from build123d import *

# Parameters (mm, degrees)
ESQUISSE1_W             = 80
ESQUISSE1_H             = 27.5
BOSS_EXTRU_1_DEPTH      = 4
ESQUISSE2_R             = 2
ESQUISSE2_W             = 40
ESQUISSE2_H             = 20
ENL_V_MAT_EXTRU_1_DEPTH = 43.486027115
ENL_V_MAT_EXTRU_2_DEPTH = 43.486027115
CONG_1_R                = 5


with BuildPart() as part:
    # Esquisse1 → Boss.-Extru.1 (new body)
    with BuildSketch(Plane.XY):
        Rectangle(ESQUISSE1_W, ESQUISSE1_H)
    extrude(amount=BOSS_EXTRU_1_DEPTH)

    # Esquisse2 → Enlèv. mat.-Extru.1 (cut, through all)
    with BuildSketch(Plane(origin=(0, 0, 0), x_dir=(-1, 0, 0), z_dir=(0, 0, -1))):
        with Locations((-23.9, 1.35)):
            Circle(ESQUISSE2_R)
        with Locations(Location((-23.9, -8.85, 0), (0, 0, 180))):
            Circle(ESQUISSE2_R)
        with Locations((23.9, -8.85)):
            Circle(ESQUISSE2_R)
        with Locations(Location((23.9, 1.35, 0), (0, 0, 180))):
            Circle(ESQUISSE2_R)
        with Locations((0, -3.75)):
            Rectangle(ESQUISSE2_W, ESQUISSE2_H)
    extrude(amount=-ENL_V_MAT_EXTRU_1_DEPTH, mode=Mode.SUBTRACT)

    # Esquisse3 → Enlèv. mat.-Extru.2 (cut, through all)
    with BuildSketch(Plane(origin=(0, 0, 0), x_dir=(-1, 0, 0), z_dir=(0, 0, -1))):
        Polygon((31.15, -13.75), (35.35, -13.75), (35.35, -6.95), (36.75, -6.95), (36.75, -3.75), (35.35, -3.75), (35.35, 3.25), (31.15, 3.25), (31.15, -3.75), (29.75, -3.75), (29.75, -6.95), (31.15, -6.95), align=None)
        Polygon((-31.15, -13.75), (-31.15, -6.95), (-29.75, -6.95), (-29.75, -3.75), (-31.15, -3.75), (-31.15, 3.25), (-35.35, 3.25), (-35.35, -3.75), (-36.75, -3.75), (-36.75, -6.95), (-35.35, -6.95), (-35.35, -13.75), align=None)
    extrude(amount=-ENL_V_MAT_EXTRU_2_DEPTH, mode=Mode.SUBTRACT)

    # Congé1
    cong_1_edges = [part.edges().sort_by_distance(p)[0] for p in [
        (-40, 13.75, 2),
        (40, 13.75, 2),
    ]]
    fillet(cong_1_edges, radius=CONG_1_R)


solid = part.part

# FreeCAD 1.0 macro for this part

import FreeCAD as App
import Part
import Sketcher

V = App.Vector


def edges_at(feature, points):
    """Names of the edges that pass closest to the given points."""
    edges = feature.Shape.Edges
    near = lambda p: min(range(len(edges)), key=lambda i: edges[i].distToShape(Part.Vertex(*p))[0])
    return sorted({f"Edge{near(p) + 1}" for p in points})


def add_polygon(sketch, points):
    """Adds a closed chain of lines whose ends are joined by coincident constraints."""
    first, n = sketch.GeometryCount, len(points)
    for a, b in zip(points, points[1:] + points[:1]):
        sketch.addGeometry(Part.LineSegment(App.Vector(*a, 0), App.Vector(*b, 0)), False)
    for i in range(n):
        sketch.addConstraint(Sketcher.Constraint("Coincident", first + i, 2, first + (i + 1) % n, 1))

doc = App.newDocument("Part")
body = doc.addObject("PartDesign::Body", "Body")

# Sketch on XY plane
sketch1 = body.newObject("Sketcher::SketchObject", "Sketch")
sketch1.AttachmentSupport = (doc.getObject("XY_Plane"), [""])
sketch1.MapMode = "FlatFace"
add_polygon(sketch1, [(-40, 14), (-40, -14), (40, -14), (40, 14)])  # lines 0-3
sketch1.addConstraint([
    Sketcher.Constraint("Vertical", 0),
    Sketcher.Constraint("Horizontal", 1),
    Sketcher.Constraint("Vertical", 2),
    Sketcher.Constraint("Horizontal", 3),
    Sketcher.Constraint("Symmetric", 0, 2, 2, 2, -1, 1),
    Sketcher.Constraint("DistanceX", 1, 1, 1, 2, 80.0),
    Sketcher.Constraint("DistanceY", 0, 2, 0, 1, 27.5),
])
pad1 = body.newObject("PartDesign::Pad", "Pad")
pad1.Profile = sketch1
pad1.Length = 4

# Sketch on XY plane
sketch2 = body.newObject("Sketcher::SketchObject", "Sketch001")
sketch2.AttachmentSupport = (doc.getObject("XY_Plane"), [""])
sketch2.MapMode = "FlatFace"
sketch2.addGeometry(Part.Circle(V(23.9, 1.4, 0), V(0, 0, 1), 2), False)  # 0
sketch2.addGeometry(Part.Circle(V(23.9, -8.8, 0), V(0, 0, 1), 2), False)  # 1
sketch2.addGeometry(Part.Circle(V(-23.9, -8.8, 0), V(0, 0, 1), 2), False)  # 2
sketch2.addGeometry(Part.Circle(V(-23.9, 1.4, 0), V(0, 0, 1), 2), False)  # 3
add_polygon(sketch2, [(20, 6.2), (20, -13.8), (-20, -13.8), (-20, 6.2)])  # lines 4-7
sketch2.addConstraint([
    Sketcher.Constraint("Vertical", 4),
    Sketcher.Constraint("Horizontal", 5),
    Sketcher.Constraint("Vertical", 6),
    Sketcher.Constraint("Horizontal", 7),
    Sketcher.Constraint("Equal", 0, 1),
    Sketcher.Constraint("Equal", 1, 2),
    Sketcher.Constraint("Equal", 2, 3),
    Sketcher.Constraint("Symmetric", 1, 3, 2, 3, -2),
    Sketcher.Constraint("Symmetric", 0, 3, 3, 3, -2),
    Sketcher.Constraint("Vertical", 0, 3, 1, 3),
    Sketcher.Constraint("Diameter", 0, 4.0),
    Sketcher.Constraint("DistanceX", 5, 2, 5, 1, 40.0),
    Sketcher.Constraint("DistanceY", 4, 2, 4, 1, 20.0),
    Sketcher.Constraint("DistanceX", -1, 1, 4, 2, 20.0),
    Sketcher.Constraint("DistanceX", -1, 1, 0, 3, 23.9),
    Sketcher.Constraint("DistanceY", 1, 3, 0, 3, 10.2),
    Sketcher.Constraint("DistanceY", 4, 2, 1, 3, 4.9),
    Sketcher.Constraint("DistanceY", -1, 1, 0, 3, 1.35),
])
pocket1 = body.newObject("PartDesign::Pocket", "Pocket")
pocket1.Profile = sketch2
pocket1.Type = "ThroughAll"
pocket1.Reversed = True

# Sketch on XY plane
sketch3 = body.newObject("Sketcher::SketchObject", "Sketch002")
sketch3.AttachmentSupport = (doc.getObject("XY_Plane"), [""])
sketch3.MapMode = "FlatFace"
add_polygon(sketch3, [(-31.1, -13.8), (-35.4, -13.8), (-35.4, -7), (-36.8, -7), (-36.8, -3.8), (-35.4, -3.8), (-35.4, 3.2), (-31.1, 3.2), (-31.1, -3.8), (-29.8, -3.8), (-29.8, -7), (-31.1, -7)])  # lines 0-11
add_polygon(sketch3, [(31.1, -13.8), (31.1, -7), (29.8, -7), (29.8, -3.8), (31.1, -3.8), (31.1, 3.2), (35.4, 3.2), (35.4, -3.8), (36.8, -3.8), (36.8, -7), (35.4, -7), (35.4, -13.8)])  # lines 12-23
sketch3.addConstraint([
    Sketcher.Constraint("Horizontal", 0),
    Sketcher.Constraint("Vertical", 1),
    Sketcher.Constraint("Horizontal", 2),
    Sketcher.Constraint("Vertical", 3),
    Sketcher.Constraint("Horizontal", 4),
    Sketcher.Constraint("Vertical", 5),
    Sketcher.Constraint("Horizontal", 6),
    Sketcher.Constraint("Vertical", 7),
    Sketcher.Constraint("Horizontal", 8),
    Sketcher.Constraint("Vertical", 9),
    Sketcher.Constraint("Horizontal", 10),
    Sketcher.Constraint("Vertical", 11),
    Sketcher.Constraint("Vertical", 12),
    Sketcher.Constraint("Horizontal", 13),
    Sketcher.Constraint("Vertical", 14),
    Sketcher.Constraint("Horizontal", 15),
    Sketcher.Constraint("Vertical", 16),
    Sketcher.Constraint("Horizontal", 17),
    Sketcher.Constraint("Vertical", 18),
    Sketcher.Constraint("Horizontal", 19),
    Sketcher.Constraint("Vertical", 20),
    Sketcher.Constraint("Horizontal", 21),
    Sketcher.Constraint("Vertical", 22),
    Sketcher.Constraint("Horizontal", 23),
    Sketcher.Constraint("Symmetric", 10, 2, 12, 2, -2),
    Sketcher.Constraint("Symmetric", 8, 2, 14, 2, -2),
    Sketcher.Constraint("Symmetric", 6, 2, 16, 2, -2),
    Sketcher.Constraint("Symmetric", 4, 2, 18, 2, -2),
    Sketcher.Constraint("Symmetric", 2, 2, 20, 2, -2),
    Sketcher.Constraint("Symmetric", 0, 2, 22, 2, -2),
    Sketcher.Constraint("Horizontal", 4, 2, 7, 2),
    Sketcher.Constraint("Horizontal", 2, 2, 9, 2),
    Sketcher.Constraint("Vertical", 1, 2, 4, 2),
    Sketcher.Constraint("Vertical", 7, 2, 10, 2),
    Sketcher.Constraint("Equal", 4, 8),
    Sketcher.Constraint("DistanceY", 5, 1, 5, 2, 7.0),
    Sketcher.Constraint("DistanceX", 0, 2, 0, 1, 4.2),
    Sketcher.Constraint("DistanceX", 2, 2, 2, 1, 1.4),
    Sketcher.Constraint("DistanceY", 1, 1, 1, 2, 6.8),
    Sketcher.Constraint("DistanceY", 3, 1, 3, 2, 3.2),
    Sketcher.Constraint("DistanceX", 9, 2, 12, 2, 60.9),
    Sketcher.Constraint("DistanceY", 0, 2, -1, 1, 13.75),
])
pocket2 = body.newObject("PartDesign::Pocket", "Pocket001")
pocket2.Profile = sketch3
pocket2.Type = "ThroughAll"
pocket2.Reversed = True
doc.recompute()

fillet = body.newObject("PartDesign::Fillet", "Fillet")
fillet.Base = (pocket2, edges_at(pocket2, [(-40, 13.75, 2), (40, 13.75, 2)]))
fillet.Radius = 5

doc.recompute()
